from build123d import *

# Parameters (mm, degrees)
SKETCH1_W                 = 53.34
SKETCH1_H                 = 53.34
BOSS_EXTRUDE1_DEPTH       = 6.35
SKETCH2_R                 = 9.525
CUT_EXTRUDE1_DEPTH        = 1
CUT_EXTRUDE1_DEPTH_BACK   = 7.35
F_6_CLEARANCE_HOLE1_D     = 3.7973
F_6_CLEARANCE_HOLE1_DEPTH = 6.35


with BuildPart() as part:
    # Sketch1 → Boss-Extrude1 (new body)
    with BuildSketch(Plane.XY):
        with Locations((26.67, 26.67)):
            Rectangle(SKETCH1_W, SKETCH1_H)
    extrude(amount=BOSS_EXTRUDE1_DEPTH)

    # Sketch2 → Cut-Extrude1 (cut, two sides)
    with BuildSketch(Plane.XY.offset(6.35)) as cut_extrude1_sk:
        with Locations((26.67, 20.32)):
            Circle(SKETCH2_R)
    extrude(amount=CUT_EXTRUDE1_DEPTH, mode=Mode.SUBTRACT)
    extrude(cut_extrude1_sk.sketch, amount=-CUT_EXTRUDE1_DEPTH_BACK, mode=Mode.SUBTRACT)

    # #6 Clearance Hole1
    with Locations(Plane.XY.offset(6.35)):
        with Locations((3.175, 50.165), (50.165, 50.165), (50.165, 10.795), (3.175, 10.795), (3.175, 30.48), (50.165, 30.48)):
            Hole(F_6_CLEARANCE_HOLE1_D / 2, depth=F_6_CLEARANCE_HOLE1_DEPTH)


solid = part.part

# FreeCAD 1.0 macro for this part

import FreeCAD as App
import Part
import Sketcher

V = App.Vector
Q = App.Units.Quantity

doc = App.newDocument("Part")
body = doc.addObject("PartDesign::Body", "Body")

sketch1 = body.newObject("Sketcher::SketchObject", "Sketch")
sketch1.AttachmentSupport = (doc.getObject("XY_Plane"), [""])
sketch1.MapMode = "FlatFace"
sketch1.addGeometry(Part.LineSegment(V(0, 53, 0), V(0, 0, 0)), False)
sketch1.addGeometry(Part.LineSegment(V(0, 0, 0), V(53, 0, 0)), False)
sketch1.addGeometry(Part.LineSegment(V(53, 0, 0), V(53, 53, 0)), False)
sketch1.addGeometry(Part.LineSegment(V(53, 53, 0), V(0, 53, 0)), False)
sketch1.addConstraint(Sketcher.Constraint("Coincident", 0, 2, 1, 1))
sketch1.addConstraint(Sketcher.Constraint("Coincident", 1, 2, 2, 1))
sketch1.addConstraint(Sketcher.Constraint("Coincident", 2, 2, 3, 1))
sketch1.addConstraint(Sketcher.Constraint("Coincident", 3, 2, 0, 1))
sketch1.addConstraint(Sketcher.Constraint("Vertical", 0))
sketch1.addConstraint(Sketcher.Constraint("Horizontal", 1))
sketch1.addConstraint(Sketcher.Constraint("Vertical", 2))
sketch1.addConstraint(Sketcher.Constraint("Horizontal", 3))
sketch1.addConstraint(Sketcher.Constraint("Coincident", 0, 2, -1, 1))
sketch1.addConstraint(Sketcher.Constraint("Equal", 3, 0))
sketch1.addConstraint(Sketcher.Constraint("DistanceX", 1, 1, 1, 2, Q("2.1 in")))
pad1 = body.newObject("PartDesign::Pad", "Pad")
pad1.Profile = sketch1
pad1.Length = Q("0.25 in")

sketch2 = body.newObject("Sketcher::SketchObject", "Sketch001")
sketch2.AttachmentSupport = (doc.getObject("XY_Plane"), [""])
sketch2.MapMode = "FlatFace"
sketch2.AttachmentOffset = App.Placement(V(0, 0, 0.25 * 25.4), App.Rotation())
sketch2.addGeometry(Part.Circle(V(27, 20, 0), V(0, 0, 1), 10), False)
sketch2.addConstraint(Sketcher.Constraint("Diameter", 0, Q("0.75 in")))
sketch2.addConstraint(Sketcher.Constraint("DistanceY", -1, 1, 0, 3, Q("0.8 in")))
sketch2.addConstraint(Sketcher.Constraint("DistanceX", -1, 1, 0, 3, Q("1.05 in")))
pocket1 = body.newObject("PartDesign::Pocket", "Pocket")
pocket1.Profile = sketch2
pocket1.Type = "ThroughAll"
pocket1.Midplane = True

sketch3 = body.newObject("Sketcher::SketchObject", "Sketch002")
sketch3.AttachmentSupport = (doc.getObject("XY_Plane"), [""])
sketch3.MapMode = "FlatFace"
sketch3.AttachmentOffset = App.Placement(V(0, 0, 0.25 * 25.4), App.Rotation())
sketch3.addGeometry(Part.Circle(V(3.2, 50.2, 0), V(0, 0, 1), 1.9), False)
sketch3.addGeometry(Part.Circle(V(50.2, 50.2, 0), V(0, 0, 1), 1.9), False)
sketch3.addGeometry(Part.Circle(V(50.2, 10.8, 0), V(0, 0, 1), 1.9), False)
sketch3.addGeometry(Part.Circle(V(3.2, 10.8, 0), V(0, 0, 1), 1.9), False)
sketch3.addGeometry(Part.Circle(V(3.2, 30.5, 0), V(0, 0, 1), 1.9), False)
sketch3.addGeometry(Part.Circle(V(50.2, 30.5, 0), V(0, 0, 1), 1.9), False)
sketch3.addConstraint(Sketcher.Constraint("Equal", 0, 1))
sketch3.addConstraint(Sketcher.Constraint("Equal", 1, 2))
sketch3.addConstraint(Sketcher.Constraint("Equal", 2, 3))
sketch3.addConstraint(Sketcher.Constraint("Equal", 3, 4))
sketch3.addConstraint(Sketcher.Constraint("Equal", 4, 5))
sketch3.addConstraint(Sketcher.Constraint("Horizontal", 0, 3, 1, 3))
sketch3.addConstraint(Sketcher.Constraint("Horizontal", 2, 3, 3, 3))
sketch3.addConstraint(Sketcher.Constraint("Horizontal", 4, 3, 5, 3))
sketch3.addConstraint(Sketcher.Constraint("Vertical", 1, 3, 2, 3))
sketch3.addConstraint(Sketcher.Constraint("Vertical", 0, 3, 3, 3))
sketch3.addConstraint(Sketcher.Constraint("Vertical", 3, 3, 4, 3))
sketch3.addConstraint(Sketcher.Constraint("Vertical", 2, 3, 5, 3))
sketch3.addConstraint(Sketcher.Constraint("Diameter", 0, Q("0.1495 in")))
sketch3.addConstraint(Sketcher.Constraint("DistanceY", -1, 1, 4, 3, Q("1.2 in")))
sketch3.addConstraint(Sketcher.Constraint("DistanceX", 0, 3, 1, 3, Q("1.85 in")))
sketch3.addConstraint(Sketcher.Constraint("DistanceY", 2, 3, 1, 3, Q("1.55 in")))
sketch3.addConstraint(Sketcher.Constraint("DistanceX", -1, 1, 0, 3, Q("0.125 in")))
sketch3.addConstraint(Sketcher.Constraint("DistanceY", -1, 1, 0, 3, Q("1.975 in")))
doc.recompute()
hole = body.newObject("PartDesign::Hole", "Hole")
hole.Profile = sketch3
hole.ThreadType = "None"
hole.Diameter = Q("0.1495 in")
hole.DepthType = "Dimension"
hole.Depth = Q("0.25 in")
hole.DrillPoint = "Flat"

doc.recompute()
